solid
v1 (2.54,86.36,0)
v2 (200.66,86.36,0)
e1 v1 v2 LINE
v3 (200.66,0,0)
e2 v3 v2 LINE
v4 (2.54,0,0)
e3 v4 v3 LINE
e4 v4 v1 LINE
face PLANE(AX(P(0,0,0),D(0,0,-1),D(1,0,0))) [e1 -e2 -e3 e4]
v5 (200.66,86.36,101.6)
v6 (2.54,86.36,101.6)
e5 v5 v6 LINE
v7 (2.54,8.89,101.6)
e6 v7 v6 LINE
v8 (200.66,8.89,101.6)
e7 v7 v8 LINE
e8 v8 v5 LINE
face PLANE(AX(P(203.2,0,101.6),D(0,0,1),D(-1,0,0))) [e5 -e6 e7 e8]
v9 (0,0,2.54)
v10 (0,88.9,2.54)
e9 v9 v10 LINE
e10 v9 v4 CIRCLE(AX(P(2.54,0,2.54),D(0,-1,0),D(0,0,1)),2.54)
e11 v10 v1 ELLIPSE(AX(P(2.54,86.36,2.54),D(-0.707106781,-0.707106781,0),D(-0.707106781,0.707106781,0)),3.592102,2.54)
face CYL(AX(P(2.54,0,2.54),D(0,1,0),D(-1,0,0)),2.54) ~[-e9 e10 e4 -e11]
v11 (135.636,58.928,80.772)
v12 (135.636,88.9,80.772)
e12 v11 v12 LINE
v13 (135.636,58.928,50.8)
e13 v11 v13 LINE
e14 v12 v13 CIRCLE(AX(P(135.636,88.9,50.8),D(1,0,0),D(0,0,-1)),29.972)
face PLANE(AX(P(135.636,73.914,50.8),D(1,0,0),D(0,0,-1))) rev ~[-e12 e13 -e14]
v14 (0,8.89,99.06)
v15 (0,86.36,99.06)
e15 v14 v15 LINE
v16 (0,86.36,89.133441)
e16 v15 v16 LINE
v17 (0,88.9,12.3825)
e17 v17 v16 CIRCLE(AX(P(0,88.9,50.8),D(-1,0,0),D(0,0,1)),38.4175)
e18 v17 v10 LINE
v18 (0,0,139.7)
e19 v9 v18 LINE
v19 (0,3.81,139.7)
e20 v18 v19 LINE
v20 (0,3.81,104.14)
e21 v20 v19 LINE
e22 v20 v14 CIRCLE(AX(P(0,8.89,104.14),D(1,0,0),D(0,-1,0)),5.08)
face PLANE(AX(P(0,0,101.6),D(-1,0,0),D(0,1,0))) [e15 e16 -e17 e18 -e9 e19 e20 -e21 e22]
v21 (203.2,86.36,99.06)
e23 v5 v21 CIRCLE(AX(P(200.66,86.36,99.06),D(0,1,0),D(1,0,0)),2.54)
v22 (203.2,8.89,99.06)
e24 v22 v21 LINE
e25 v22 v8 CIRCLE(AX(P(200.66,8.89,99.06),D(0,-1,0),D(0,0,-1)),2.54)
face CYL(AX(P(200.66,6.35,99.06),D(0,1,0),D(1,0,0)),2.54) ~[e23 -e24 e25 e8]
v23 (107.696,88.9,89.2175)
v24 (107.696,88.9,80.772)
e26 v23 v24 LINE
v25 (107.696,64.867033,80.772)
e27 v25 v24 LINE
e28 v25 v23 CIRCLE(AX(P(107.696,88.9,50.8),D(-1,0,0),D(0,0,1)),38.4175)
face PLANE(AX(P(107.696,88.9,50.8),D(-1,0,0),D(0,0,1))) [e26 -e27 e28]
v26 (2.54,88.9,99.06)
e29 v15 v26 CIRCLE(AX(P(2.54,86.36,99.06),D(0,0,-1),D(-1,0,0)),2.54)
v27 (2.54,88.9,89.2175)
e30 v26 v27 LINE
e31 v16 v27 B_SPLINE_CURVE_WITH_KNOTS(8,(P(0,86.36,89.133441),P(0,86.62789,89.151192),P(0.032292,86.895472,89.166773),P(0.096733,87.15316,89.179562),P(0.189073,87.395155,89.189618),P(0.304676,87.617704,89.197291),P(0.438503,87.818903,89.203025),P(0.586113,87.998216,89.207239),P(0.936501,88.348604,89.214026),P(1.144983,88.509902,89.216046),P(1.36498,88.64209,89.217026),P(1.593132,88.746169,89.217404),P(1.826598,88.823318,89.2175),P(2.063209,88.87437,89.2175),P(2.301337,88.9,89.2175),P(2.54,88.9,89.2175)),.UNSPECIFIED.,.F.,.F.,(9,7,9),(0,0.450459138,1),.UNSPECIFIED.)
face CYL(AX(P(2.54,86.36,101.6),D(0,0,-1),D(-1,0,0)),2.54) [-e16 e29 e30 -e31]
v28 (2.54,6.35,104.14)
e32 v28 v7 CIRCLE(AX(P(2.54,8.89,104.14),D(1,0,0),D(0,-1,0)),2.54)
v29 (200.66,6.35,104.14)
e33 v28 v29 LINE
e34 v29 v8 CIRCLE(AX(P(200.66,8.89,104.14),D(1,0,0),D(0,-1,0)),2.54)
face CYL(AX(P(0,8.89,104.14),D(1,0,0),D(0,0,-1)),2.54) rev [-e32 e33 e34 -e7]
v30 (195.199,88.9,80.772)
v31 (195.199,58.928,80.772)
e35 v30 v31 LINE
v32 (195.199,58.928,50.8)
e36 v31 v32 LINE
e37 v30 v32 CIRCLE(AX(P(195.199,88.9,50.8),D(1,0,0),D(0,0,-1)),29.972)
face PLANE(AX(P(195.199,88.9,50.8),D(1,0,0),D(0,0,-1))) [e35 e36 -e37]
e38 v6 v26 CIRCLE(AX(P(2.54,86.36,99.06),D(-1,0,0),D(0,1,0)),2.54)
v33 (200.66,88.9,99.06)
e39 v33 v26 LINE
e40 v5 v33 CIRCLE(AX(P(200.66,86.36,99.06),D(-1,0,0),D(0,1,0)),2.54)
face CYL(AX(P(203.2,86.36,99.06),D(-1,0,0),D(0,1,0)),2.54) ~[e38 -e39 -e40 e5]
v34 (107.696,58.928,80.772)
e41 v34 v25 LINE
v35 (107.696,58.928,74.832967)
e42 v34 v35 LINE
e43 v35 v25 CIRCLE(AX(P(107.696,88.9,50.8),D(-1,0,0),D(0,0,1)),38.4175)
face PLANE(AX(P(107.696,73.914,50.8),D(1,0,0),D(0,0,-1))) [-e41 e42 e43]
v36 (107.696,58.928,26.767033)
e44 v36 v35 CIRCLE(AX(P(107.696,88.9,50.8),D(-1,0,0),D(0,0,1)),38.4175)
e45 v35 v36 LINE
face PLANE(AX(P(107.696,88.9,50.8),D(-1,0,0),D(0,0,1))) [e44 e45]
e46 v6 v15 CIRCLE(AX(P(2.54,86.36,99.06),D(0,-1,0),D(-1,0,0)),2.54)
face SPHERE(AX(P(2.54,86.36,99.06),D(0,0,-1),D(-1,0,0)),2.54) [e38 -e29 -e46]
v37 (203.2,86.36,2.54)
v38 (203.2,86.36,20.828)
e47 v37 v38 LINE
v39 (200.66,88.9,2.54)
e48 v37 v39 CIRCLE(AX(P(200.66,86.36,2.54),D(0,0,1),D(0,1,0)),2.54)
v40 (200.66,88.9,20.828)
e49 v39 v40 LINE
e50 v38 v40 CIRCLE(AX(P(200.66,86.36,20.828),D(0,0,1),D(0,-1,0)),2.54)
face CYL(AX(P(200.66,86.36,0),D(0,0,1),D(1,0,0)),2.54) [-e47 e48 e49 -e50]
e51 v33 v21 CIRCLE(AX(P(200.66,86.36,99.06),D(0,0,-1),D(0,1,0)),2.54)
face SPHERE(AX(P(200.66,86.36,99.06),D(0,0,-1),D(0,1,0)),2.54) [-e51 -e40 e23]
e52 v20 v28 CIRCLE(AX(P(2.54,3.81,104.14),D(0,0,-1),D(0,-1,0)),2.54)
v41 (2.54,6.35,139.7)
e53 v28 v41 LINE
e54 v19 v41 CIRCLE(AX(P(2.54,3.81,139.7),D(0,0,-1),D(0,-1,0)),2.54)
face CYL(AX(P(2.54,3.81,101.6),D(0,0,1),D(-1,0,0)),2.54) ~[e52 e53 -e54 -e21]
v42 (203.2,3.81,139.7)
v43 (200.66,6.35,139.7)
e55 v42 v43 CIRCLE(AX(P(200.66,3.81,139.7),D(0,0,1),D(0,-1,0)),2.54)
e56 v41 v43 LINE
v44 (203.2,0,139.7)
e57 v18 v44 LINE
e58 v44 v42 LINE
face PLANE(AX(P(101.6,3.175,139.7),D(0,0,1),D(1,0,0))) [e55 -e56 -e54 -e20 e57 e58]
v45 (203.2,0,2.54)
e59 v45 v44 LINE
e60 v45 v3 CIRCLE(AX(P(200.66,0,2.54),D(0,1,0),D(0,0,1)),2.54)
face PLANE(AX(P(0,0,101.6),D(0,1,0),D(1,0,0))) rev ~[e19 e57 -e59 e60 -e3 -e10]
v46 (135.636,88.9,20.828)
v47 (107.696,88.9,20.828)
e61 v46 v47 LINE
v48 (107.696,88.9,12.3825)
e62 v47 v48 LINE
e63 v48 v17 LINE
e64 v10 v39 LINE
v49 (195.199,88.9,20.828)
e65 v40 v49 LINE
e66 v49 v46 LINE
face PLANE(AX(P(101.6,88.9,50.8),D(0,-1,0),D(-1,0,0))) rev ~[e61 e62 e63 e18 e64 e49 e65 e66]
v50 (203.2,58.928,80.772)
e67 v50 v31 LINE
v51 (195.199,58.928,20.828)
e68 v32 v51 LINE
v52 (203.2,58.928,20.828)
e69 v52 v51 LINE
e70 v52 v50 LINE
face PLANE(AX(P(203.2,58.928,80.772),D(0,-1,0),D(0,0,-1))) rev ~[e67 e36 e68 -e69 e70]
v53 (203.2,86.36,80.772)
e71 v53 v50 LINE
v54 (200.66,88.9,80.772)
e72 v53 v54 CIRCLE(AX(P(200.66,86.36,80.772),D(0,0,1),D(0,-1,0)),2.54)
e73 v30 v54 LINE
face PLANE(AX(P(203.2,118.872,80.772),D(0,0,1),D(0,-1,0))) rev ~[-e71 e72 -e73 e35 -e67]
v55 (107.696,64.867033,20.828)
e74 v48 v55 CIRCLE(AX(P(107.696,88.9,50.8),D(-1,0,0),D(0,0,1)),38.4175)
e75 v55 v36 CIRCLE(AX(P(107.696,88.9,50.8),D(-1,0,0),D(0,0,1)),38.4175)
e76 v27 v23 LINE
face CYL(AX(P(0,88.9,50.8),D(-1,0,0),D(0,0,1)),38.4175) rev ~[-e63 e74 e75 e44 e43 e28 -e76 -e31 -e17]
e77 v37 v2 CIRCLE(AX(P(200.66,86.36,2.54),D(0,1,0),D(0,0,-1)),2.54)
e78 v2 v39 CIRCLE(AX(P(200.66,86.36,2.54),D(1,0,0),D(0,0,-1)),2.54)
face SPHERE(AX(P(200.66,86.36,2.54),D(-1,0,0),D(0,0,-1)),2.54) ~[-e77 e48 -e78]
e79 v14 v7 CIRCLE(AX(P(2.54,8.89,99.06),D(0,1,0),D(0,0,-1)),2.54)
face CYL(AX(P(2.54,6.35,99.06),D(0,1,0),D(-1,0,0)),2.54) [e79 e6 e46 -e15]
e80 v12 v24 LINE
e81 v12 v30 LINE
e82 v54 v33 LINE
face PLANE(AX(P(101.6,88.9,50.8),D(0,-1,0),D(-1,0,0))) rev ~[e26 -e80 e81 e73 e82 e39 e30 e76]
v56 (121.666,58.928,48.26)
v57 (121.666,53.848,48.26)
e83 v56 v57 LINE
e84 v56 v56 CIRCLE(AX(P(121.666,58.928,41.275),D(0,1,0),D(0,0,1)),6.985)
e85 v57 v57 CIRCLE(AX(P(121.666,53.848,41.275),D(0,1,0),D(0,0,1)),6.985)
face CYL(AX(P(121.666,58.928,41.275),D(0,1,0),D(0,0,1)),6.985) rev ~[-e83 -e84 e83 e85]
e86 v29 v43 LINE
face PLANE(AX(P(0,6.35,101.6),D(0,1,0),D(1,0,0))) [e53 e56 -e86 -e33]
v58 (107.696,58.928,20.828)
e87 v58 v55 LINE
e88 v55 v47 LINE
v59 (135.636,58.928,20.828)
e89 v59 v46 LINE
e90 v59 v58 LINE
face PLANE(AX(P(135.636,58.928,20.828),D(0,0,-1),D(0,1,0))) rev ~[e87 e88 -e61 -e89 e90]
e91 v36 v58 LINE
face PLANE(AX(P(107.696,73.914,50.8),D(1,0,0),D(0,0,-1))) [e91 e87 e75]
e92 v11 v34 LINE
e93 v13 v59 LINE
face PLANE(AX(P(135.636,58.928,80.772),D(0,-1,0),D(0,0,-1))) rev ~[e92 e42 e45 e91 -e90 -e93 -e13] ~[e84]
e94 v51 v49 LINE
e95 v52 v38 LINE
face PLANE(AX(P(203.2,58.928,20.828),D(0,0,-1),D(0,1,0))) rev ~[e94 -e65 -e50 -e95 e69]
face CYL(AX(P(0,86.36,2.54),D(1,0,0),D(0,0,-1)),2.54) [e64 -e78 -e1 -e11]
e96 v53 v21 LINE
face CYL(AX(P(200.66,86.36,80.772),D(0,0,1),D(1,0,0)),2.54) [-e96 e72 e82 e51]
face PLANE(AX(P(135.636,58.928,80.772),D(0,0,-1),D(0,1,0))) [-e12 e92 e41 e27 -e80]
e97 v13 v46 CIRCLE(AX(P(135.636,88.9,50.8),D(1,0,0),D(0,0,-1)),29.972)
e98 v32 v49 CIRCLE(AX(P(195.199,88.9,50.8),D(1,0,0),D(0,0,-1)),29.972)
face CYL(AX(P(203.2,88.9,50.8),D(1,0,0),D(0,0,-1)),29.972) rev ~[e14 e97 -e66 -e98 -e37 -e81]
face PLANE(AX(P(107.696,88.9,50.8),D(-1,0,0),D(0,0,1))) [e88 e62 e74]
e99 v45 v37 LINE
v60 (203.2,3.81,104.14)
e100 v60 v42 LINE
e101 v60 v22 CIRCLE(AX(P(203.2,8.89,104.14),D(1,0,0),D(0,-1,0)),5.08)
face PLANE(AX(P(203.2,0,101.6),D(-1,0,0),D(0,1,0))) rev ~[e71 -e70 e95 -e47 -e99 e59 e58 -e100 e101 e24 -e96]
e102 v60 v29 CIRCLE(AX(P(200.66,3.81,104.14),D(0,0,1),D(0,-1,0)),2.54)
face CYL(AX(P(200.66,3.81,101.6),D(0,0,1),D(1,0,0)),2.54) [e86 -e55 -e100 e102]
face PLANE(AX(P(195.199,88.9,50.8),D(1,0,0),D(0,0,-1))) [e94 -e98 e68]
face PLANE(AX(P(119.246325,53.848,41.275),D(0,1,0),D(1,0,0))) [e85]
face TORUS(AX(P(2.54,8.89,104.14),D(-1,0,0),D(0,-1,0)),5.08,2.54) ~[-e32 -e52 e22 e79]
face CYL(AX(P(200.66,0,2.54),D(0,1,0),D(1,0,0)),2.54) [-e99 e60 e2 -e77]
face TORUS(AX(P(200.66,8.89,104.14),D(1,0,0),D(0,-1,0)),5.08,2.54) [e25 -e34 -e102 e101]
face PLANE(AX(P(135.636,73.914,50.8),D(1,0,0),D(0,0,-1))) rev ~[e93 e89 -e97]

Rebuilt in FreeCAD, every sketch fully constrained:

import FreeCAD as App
import Part
import Sketcher

V = App.Vector
Q = App.Units.Quantity


def edges_at(feature, points):
    """Names of the edges that pass closest to the given points."""
    edges = feature.Shape.Edges
    near = lambda p: min(range(len(edges)), key=lambda i: edges[i].distToShape(Part.Vertex(*p))[0])
    return sorted({f"Edge{near(p) + 1}" for p in points})

doc = App.newDocument("Part")
body = doc.addObject("PartDesign::Body", "Body")

# Sketch on XZ plane
sketch1 = body.newObject("Sketcher::SketchObject", "Sketch")
sketch1.AttachmentSupport = (doc.getObject("XZ_Plane"), [""])
sketch1.MapMode = "FlatFace"
sketch1.addGeometry([
    Part.LineSegment(V(203, 0, 0), V(0, 0, 0)),
    Part.LineSegment(V(0, 0, 0), V(0, 102, 0)),
    Part.LineSegment(V(0, 102, 0), V(203, 102, 0)),
    Part.LineSegment(V(203, 102, 0), V(203, 0, 0)),
], False)
sketch1.addConstraint([
    Sketcher.Constraint("Coincident", 0, 2, 1, 1),
    Sketcher.Constraint("Coincident", 1, 2, 2, 1),
    Sketcher.Constraint("Coincident", 2, 2, 3, 1),
    Sketcher.Constraint("Coincident", 3, 2, 0, 1),
    Sketcher.Constraint("Horizontal", 0),
    Sketcher.Constraint("Vertical", 1),
    Sketcher.Constraint("Horizontal", 2),
    Sketcher.Constraint("Vertical", 3),
    Sketcher.Constraint("Coincident", 0, 2, -1, 1),
    Sketcher.Constraint("DistanceX", 0, 2, 0, 1, Q("8 in")),
    Sketcher.Constraint("DistanceY", 1, 1, 1, 2, Q("4 in")),
])
pad1 = body.newObject("PartDesign::Pad", "Pad")
pad1.Profile = sketch1
pad1.Length = Q("3.5 in")
pad1.Reversed = True

# Sketch on YZ plane
sketch2 = body.newObject("Sketcher::SketchObject", "Sketch001")
sketch2.AttachmentSupport = (doc.getObject("YZ_Plane"), [""])
sketch2.MapMode = "FlatFace"
sketch2.AttachmentOffset = App.Placement(V(0, 0, 8 * 25.4), App.Rotation())
sketch2.addGeometry(Part.Circle(V(89, 51, 0), V(0, 0, 1), 30), False)
sketch2.addConstraint([
    Sketcher.Constraint("Diameter", 0, Q("2.36 in")),
    Sketcher.Constraint("DistanceY", -1, 1, 0, 3, Q("2 in")),
    Sketcher.Constraint("DistanceX", -1, 1, 0, 3, Q("3.5 in")),
])
pocket1 = body.newObject("PartDesign::Pocket", "Pocket")
pocket1.Profile = sketch2
pocket1.Length = Q("8 in")

# Sketch on YZ plane
sketch3 = body.newObject("Sketcher::SketchObject", "Sketch002")
sketch3.AttachmentSupport = (doc.getObject("YZ_Plane"), [""])
sketch3.MapMode = "FlatFace"
sketch3.AttachmentOffset = App.Placement(V(0, 0, 8 * 25.4), App.Rotation())
sketch3.addGeometry([
    Part.LineSegment(V(119, 21, 0), V(119, 81, 0)),
    Part.LineSegment(V(119, 81, 0), V(59, 81, 0)),
    Part.LineSegment(V(59, 81, 0), V(59, 21, 0)),
    Part.LineSegment(V(59, 21, 0), V(119, 21, 0)),
], False)
sketch3.addConstraint([
    Sketcher.Constraint("Coincident", 0, 2, 1, 1),
    Sketcher.Constraint("Coincident", 1, 2, 2, 1),
    Sketcher.Constraint("Coincident", 2, 2, 3, 1),
    Sketcher.Constraint("Coincident", 3, 2, 0, 1),
    Sketcher.Constraint("Vertical", 0),
    Sketcher.Constraint("Horizontal", 1),
    Sketcher.Constraint("Vertical", 2),
    Sketcher.Constraint("Horizontal", 3),
    Sketcher.Constraint("Equal", 3, 0),
    Sketcher.Constraint("DistanceX", 1, 2, 1, 1, Q("2.36 in")),
    Sketcher.Constraint("DistanceX", -1, 1, 0, 2, Q("4.68 in")),
    Sketcher.Constraint("DistanceY", -1, 1, 0, 2, Q("3.18 in")),
])
pocket2 = body.newObject("PartDesign::Pocket", "Pocket001")
pocket2.Profile = sketch3
pocket2.Length = Q("0.315 in")

# Sketch on YZ plane
sketch4 = body.newObject("Sketcher::SketchObject", "Sketch003")
sketch4.AttachmentSupport = (doc.getObject("YZ_Plane"), [""])
sketch4.MapMode = "FlatFace"
sketch4.AttachmentOffset = App.Placement(V(0, 0, 5.34 * 25.4), App.Rotation())
sketch4.addGeometry([
    Part.LineSegment(V(89, 81, 0), V(59, 81, 0)),
    Part.LineSegment(V(59, 81, 0), V(59, 21, 0)),
    Part.LineSegment(V(59, 21, 0), V(89, 21, 0)),
    Part.LineSegment(V(89, 21, 0), V(89, 81, 0)),
], False)
sketch4.addConstraint([
    Sketcher.Constraint("Coincident", 0, 2, 1, 1),
    Sketcher.Constraint("Coincident", 1, 2, 2, 1),
    Sketcher.Constraint("Coincident", 2, 2, 3, 1),
    Sketcher.Constraint("Coincident", 3, 2, 0, 1),
    Sketcher.Constraint("Horizontal", 0),
    Sketcher.Constraint("Vertical", 1),
    Sketcher.Constraint("Horizontal", 2),
    Sketcher.Constraint("Vertical", 3),
    Sketcher.Constraint("DistanceX", 0, 2, 0, 1, Q("1.18 in")),
    Sketcher.Constraint("DistanceY", 1, 2, 1, 1, Q("2.36 in")),
    Sketcher.Constraint("DistanceX", -1, 1, 2, 2, Q("3.5 in")),
    Sketcher.Constraint("DistanceY", -1, 1, 0, 2, Q("3.18 in")),
])
pocket3 = body.newObject("PartDesign::Pocket", "Pocket002")
pocket3.Profile = sketch4
pocket3.Length = Q("1.1 in")

# Sketch on YZ plane
sketch5 = body.newObject("Sketcher::SketchObject", "Sketch004")
sketch5.AttachmentSupport = (doc.getObject("YZ_Plane"), [""])
sketch5.MapMode = "FlatFace"
sketch5.addGeometry(Part.Circle(V(89, 51, 0), V(0, 0, 1), 38), False)
sketch5.addConstraint([
    Sketcher.Constraint("Diameter", 0, Q("3.025 in")),
    Sketcher.Constraint("DistanceY", -1, 1, 0, 3, Q("2 in")),
    Sketcher.Constraint("DistanceX", -1, 1, 0, 3, Q("3.5 in")),
])
pocket4 = body.newObject("PartDesign::Pocket", "Pocket003")
pocket4.Profile = sketch5
pocket4.Length = Q("4.24 in")
pocket4.Reversed = True

# Sketch on XZ plane
sketch6 = body.newObject("Sketcher::SketchObject", "Sketch005")
sketch6.AttachmentSupport = (doc.getObject("XZ_Plane"), [""])
sketch6.MapMode = "FlatFace"
sketch6.AttachmentOffset = App.Placement(V(0, 0, -2.32 * 25.4), App.Rotation())
sketch6.addGeometry(Part.Circle(V(122, 41, 0), V(0, 0, 1), 7), False)
sketch6.addConstraint([
    Sketcher.Constraint("Diameter", 0, Q("0.55 in")),
    Sketcher.Constraint("DistanceX", -1, 1, 0, 3, Q("4.79 in")),
    Sketcher.Constraint("DistanceY", -1, 1, 0, 3, Q("1.625 in")),
])
pocket5 = body.newObject("PartDesign::Pocket", "Pocket004")
pocket5.Profile = sketch6
pocket5.Length = Q("0.2 in")
pocket5.Reversed = True

# Sketch on XY plane
sketch7 = body.newObject("Sketcher::SketchObject", "Sketch006")
sketch7.AttachmentSupport = (doc.getObject("XY_Plane"), [""])
sketch7.MapMode = "FlatFace"
sketch7.AttachmentOffset = App.Placement(V(0, 0, 4 * 25.4), App.Rotation())
sketch7.addGeometry([
    Part.LineSegment(V(0, 6, 0), V(0, 0, 0)),
    Part.LineSegment(V(0, 0, 0), V(203, 0, 0)),
    Part.LineSegment(V(203, 0, 0), V(203, 6, 0)),
    Part.LineSegment(V(203, 6, 0), V(0, 6, 0)),
], False)
sketch7.addConstraint([
    Sketcher.Constraint("Coincident", 0, 2, 1, 1),
    Sketcher.Constraint("Coincident", 1, 2, 2, 1),
    Sketcher.Constraint("Coincident", 2, 2, 3, 1),
    Sketcher.Constraint("Coincident", 3, 2, 0, 1),
    Sketcher.Constraint("Vertical", 0),
    Sketcher.Constraint("Horizontal", 1),
    Sketcher.Constraint("Vertical", 2),
    Sketcher.Constraint("Horizontal", 3),
    Sketcher.Constraint("Coincident", 0, 2, -1, 1),
    Sketcher.Constraint("DistanceX", 1, 1, 1, 2, Q("8 in")),
    Sketcher.Constraint("DistanceY", 0, 2, 0, 1, Q("0.25 in")),
])
pad2 = body.newObject("PartDesign::Pad", "Pad001")
pad2.Profile = sketch7
pad2.Length = Q("1.5 in")
doc.recompute()

fillet = body.newObject("PartDesign::Fillet", "Fillet")
fillet.Base = (pad2, edges_at(pad2, [
    (101.6, 6.35, 101.6),
    (0, 6.35, 120.65),
    (203.2, 6.35, 120.65),
    (0, 44.45, 0),
    (0, 88.9, 95.409),
    (0, 47.625, 101.6),
    (101.6, 88.9, 0),
    (203.2, 44.45, 0),
    (203.2, 88.9, 10.414),
    (203.2, 88.9, 91.186),
    (101.6, 88.9, 101.6),
    (203.2, 47.625, 101.6),
]))
fillet.Radius = Q("0.1 in")

doc.recompute()
